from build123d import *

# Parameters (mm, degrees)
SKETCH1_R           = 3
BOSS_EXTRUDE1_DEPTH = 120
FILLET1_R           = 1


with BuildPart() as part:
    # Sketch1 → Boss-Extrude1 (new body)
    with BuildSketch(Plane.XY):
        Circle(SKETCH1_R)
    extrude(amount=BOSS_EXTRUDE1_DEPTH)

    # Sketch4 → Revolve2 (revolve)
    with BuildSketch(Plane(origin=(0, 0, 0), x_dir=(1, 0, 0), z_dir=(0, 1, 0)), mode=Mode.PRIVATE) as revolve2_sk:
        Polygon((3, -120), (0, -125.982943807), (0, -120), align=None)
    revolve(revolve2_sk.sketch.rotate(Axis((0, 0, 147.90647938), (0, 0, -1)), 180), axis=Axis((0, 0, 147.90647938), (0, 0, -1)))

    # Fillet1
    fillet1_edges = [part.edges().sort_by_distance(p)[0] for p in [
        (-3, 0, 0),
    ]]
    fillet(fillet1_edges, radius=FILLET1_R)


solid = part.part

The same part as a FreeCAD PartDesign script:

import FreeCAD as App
import Part
import Sketcher


def edges_at(feature, points):
    """Names of the edges that pass closest to the given points."""
    edges = feature.Shape.Edges
    near = lambda p: min(range(len(edges)), key=lambda i: edges[i].distToShape(Part.Vertex(*p))[0])
    return sorted({f"Edge{near(p) + 1}" for p in points})

doc = App.newDocument("Part")
params = doc.addObject("Spreadsheet::Sheet", "Params")
for row, (alias, value) in enumerate([
    ("sketch1_diameter", "6 mm"),
    ("pad1_length", "120 mm"),
    ("sketch2_width", "3 mm"),
    ("revolution_angle", "360 deg"),
    ("fillet_radius", "1 mm"),
], start=1):
    params.set(f"A{row}", alias)
    params.set(f"B{row}", "=" + value)
    params.setAlias(f"B{row}", alias)

body = doc.addObject("PartDesign::Body", "Body")

# Sketch on XY plane
sketch1 = body.newObject("Sketcher::SketchObject", "Sketch")
sketch1.AttachmentSupport = (doc.getObject("XY_Plane"), [""])
sketch1.MapMode = "FlatFace"
sketch1.addGeometry(Part.Circle(App.Vector(0, 0, 0), App.Vector(0, 0, 1), 3), False)
sketch1.addConstraint([
    Sketcher.Constraint("Coincident", 0, 3, -1, 1),
    Sketcher.Constraint("Diameter", 0, 6.0),
])
sketch1.setExpression("Constraints[1]", "Params.sketch1_diameter")
pad1 = body.newObject("PartDesign::Pad", "Pad")
pad1.Profile = sketch1
pad1.setExpression("Length", "Params.pad1_length")

# Sketch on XZ plane
sketch2 = body.newObject("Sketcher::SketchObject", "Sketch001")
sketch2.AttachmentSupport = (doc.getObject("XZ_Plane"), [""])
sketch2.MapMode = "FlatFace"
sketch2.addGeometry([
    Part.LineSegment(App.Vector(0, 125.982944, 0), App.Vector(3, 120, 0)),
    Part.LineSegment(App.Vector(3, 120, 0), App.Vector(0, 120, 0)),
    Part.LineSegment(App.Vector(0, 120, 0), App.Vector(0, 125.982944, 0)),
], False)
sketch2.addConstraint([
    Sketcher.Constraint("Coincident", 0, 2, 1, 1),
    Sketcher.Constraint("Coincident", 1, 2, 2, 1),
    Sketcher.Constraint("Coincident", 2, 2, 0, 1),
    Sketcher.Constraint("Horizontal", 1),
    Sketcher.Constraint("Vertical", 2),
    Sketcher.Constraint("PointOnObject", 1, 2, -2),
    Sketcher.Constraint("DistanceX", 1, 2, 1, 1, 3.0),
    Sketcher.Constraint("DistanceY", -1, 1, 0, 2, 120.0),
    Sketcher.Constraint("DistanceY", 2, 1, 2, 2, 5.982944),
])
sketch2.setExpression("Constraints[6]", "Params.sketch2_width")
revolution = body.newObject("PartDesign::Revolution", "Revolution")
revolution.Profile = sketch2
revolution.ReferenceAxis = (sketch2, ["V_Axis"])
revolution.setExpression("Angle", "Params.revolution_angle")
doc.recompute()

fillet = body.newObject("PartDesign::Fillet", "Fillet")
fillet.Base = (revolution, edges_at(revolution, [(-3, 0, 0)]))
fillet.setExpression("Radius", "Params.fillet_radius")

doc.recompute()
